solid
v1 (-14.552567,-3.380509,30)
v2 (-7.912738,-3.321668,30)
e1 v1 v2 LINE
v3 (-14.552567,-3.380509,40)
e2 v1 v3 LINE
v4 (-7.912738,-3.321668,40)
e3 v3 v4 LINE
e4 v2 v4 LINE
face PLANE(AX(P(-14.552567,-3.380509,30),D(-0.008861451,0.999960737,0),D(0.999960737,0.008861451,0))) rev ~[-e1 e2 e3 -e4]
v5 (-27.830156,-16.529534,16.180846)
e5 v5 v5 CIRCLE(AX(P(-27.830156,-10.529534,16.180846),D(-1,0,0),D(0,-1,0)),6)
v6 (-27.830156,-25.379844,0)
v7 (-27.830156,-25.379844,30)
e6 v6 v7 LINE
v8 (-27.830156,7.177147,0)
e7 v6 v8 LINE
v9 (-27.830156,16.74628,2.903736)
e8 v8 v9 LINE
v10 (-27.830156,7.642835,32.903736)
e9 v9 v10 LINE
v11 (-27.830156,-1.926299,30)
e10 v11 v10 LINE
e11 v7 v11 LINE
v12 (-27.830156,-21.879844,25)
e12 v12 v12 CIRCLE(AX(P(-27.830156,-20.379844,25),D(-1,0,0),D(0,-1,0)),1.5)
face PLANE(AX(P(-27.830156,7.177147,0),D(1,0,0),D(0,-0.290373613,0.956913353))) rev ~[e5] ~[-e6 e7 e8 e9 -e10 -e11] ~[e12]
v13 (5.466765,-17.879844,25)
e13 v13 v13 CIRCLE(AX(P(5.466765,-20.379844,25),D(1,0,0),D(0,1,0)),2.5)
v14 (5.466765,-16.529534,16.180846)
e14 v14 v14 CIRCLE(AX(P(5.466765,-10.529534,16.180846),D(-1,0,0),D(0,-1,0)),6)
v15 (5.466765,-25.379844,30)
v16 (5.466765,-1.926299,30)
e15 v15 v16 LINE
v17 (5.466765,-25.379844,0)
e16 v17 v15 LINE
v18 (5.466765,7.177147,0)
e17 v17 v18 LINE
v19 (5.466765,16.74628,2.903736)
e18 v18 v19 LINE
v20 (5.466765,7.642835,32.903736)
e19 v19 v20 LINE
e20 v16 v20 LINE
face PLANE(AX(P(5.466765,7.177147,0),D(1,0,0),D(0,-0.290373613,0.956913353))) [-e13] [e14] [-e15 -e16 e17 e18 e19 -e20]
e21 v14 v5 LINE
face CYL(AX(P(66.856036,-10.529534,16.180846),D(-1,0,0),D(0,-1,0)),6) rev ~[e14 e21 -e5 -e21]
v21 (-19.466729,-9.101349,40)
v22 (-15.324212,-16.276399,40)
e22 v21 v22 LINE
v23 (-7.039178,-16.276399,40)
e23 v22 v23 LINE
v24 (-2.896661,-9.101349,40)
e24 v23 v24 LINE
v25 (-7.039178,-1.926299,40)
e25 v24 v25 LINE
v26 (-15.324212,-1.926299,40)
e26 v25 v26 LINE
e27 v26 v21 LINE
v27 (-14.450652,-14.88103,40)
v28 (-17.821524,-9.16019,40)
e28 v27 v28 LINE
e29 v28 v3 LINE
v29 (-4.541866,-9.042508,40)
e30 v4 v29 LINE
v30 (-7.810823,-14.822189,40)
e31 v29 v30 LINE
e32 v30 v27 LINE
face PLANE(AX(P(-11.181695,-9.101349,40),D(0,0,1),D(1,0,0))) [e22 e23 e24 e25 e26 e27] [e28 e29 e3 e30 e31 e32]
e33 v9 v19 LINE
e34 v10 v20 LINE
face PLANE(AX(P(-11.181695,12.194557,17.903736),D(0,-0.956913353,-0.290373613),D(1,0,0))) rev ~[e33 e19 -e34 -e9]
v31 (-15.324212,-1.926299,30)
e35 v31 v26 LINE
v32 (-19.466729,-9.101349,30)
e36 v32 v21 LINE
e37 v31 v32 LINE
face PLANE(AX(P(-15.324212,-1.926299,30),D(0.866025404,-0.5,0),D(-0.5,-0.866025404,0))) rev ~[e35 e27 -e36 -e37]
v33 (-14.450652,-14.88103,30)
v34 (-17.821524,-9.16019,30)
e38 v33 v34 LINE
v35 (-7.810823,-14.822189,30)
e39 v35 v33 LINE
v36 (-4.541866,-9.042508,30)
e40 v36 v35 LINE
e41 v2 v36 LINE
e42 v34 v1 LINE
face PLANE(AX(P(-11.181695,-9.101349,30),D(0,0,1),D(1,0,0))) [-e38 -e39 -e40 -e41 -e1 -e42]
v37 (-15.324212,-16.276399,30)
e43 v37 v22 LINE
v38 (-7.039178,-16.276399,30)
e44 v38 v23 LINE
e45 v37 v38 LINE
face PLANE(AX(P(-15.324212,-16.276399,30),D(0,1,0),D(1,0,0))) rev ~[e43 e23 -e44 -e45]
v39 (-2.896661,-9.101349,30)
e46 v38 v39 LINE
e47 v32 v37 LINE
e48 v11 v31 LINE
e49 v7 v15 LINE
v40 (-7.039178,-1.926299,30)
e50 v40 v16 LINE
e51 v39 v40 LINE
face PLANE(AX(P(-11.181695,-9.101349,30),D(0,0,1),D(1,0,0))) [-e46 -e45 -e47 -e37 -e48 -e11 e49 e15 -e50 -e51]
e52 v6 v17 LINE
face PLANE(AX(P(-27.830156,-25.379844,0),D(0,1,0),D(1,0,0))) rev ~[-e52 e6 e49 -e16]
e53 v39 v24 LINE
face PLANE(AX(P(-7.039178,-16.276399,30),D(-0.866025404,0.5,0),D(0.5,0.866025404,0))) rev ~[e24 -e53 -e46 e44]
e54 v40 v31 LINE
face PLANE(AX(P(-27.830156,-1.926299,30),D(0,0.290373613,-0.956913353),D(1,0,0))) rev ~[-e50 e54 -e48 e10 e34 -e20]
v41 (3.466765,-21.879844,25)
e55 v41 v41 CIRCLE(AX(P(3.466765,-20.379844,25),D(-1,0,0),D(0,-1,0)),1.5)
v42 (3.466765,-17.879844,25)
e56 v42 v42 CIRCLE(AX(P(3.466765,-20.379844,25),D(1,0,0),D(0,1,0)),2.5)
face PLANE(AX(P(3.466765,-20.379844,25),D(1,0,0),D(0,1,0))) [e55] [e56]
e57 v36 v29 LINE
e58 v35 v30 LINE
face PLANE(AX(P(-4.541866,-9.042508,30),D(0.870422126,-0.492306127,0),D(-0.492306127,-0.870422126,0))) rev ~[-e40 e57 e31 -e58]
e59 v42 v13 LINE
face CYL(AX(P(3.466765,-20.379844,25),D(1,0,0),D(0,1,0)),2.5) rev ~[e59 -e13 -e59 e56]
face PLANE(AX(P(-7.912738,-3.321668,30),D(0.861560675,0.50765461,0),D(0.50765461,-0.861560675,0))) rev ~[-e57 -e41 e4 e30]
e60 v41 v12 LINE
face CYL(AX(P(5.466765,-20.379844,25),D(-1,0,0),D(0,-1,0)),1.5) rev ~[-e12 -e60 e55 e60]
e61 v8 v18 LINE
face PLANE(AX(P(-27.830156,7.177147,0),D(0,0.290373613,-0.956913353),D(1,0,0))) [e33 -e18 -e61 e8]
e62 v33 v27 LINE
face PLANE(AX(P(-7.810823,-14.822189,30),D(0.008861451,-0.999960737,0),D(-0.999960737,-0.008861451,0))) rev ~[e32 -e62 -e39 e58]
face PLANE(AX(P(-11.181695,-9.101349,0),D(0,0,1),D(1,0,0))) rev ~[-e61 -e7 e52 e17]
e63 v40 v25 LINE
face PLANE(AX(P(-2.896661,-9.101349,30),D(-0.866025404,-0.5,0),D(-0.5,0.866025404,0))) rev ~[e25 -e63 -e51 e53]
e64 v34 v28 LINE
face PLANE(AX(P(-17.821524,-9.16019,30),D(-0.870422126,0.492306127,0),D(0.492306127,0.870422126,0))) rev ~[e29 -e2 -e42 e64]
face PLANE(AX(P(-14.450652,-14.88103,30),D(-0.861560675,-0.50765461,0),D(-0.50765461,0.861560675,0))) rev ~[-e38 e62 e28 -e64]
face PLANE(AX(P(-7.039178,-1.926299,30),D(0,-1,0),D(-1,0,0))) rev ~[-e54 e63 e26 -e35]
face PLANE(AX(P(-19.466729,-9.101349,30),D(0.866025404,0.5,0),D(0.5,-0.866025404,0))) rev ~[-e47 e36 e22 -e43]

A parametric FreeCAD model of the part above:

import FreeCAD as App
import Part
import Sketcher
from FreeCAD import Vector
Q = App.Units.Quantity

doc = App.newDocument("Part")
body = doc.addObject("PartDesign::Body", "Body")

# Sketch on XY plane
sketch1 = body.newObject("Sketcher::SketchObject", "Sketch")
sketch1.AttachmentSupport = (doc.getObject("XY_Plane"), [""])
sketch1.MapMode = "FlatFace"
sketch1.addGeometry([
    Part.LineSegment(Vector(-27.830156, 7.177147, 0), Vector(-27.830156, -25.379844, 0)),
    Part.LineSegment(Vector(-27.830156, -25.379844, 0), Vector(5.466765, -25.379844, 0)),
    Part.LineSegment(Vector(5.466765, -25.379844, 0), Vector(5.466765, 7.177147, 0)),
    Part.LineSegment(Vector(5.466765, 7.177147, 0), Vector(-27.830156, 7.177147, 0)),
], False)
sketch1.addConstraint([
    Sketcher.Constraint("Coincident", 0, 2, 1, 1),
    Sketcher.Constraint("Coincident", 1, 2, 2, 1),
    Sketcher.Constraint("Coincident", 2, 2, 3, 1),
    Sketcher.Constraint("Coincident", 3, 2, 0, 1),
    Sketcher.Constraint("Vertical", 0),
    Sketcher.Constraint("Horizontal", 1),
    Sketcher.Constraint("Vertical", 2),
    Sketcher.Constraint("Horizontal", 3),
    Sketcher.Constraint("DistanceX", 1, 1, 1, 2, Q("33.296921 mm")),
    Sketcher.Constraint("DistanceY", 0, 2, 0, 1, Q("32.556991 mm")),
    Sketcher.Constraint("DistanceX", 0, 2, -1, 1, Q("27.830156 mm")),
    Sketcher.Constraint("DistanceY", 0, 2, -1, 1, Q("25.379844 mm")),
])
pad1 = body.newObject("PartDesign::Pad", "Pad")
pad1.Profile = sketch1
pad1.Length = 30

# Sketch on XY plane
sketch2 = body.newObject("Sketcher::SketchObject", "Sketch001")
sketch2.AttachmentSupport = (doc.getObject("XY_Plane"), [""])
sketch2.MapMode = "FlatFace"
sketch2.AttachmentOffset = App.Placement(Vector(0, 0, 30), App.Rotation())
sketch2.addGeometry([
    Part.LineSegment(Vector(-15.324212, -16.276399, 0), Vector(-7.039178, -16.276399, 0)),  # 0
    Part.LineSegment(Vector(-7.039178, -16.276399, 0), Vector(-2.896661, -9.101349, 0)),  # 1
    Part.LineSegment(Vector(-2.896661, -9.101349, 0), Vector(-7.039178, -1.926299, 0)),  # 2
    Part.LineSegment(Vector(-7.039178, -1.926299, 0), Vector(-15.324212, -1.926299, 0)),  # 3
    Part.LineSegment(Vector(-15.324212, -1.926299, 0), Vector(-19.466729, -9.101349, 0)),  # 4
    Part.LineSegment(Vector(-19.466729, -9.101349, 0), Vector(-15.324212, -16.276399, 0)),  # 5
    Part.LineSegment(Vector(-7.810823, -14.822189, 0), Vector(-14.450652, -14.88103, 0)),  # 6
    Part.LineSegment(Vector(-14.450652, -14.88103, 0), Vector(-17.821524, -9.16019, 0)),  # 7
    Part.LineSegment(Vector(-17.821524, -9.16019, 0), Vector(-14.552567, -3.380509, 0)),  # 8
    Part.LineSegment(Vector(-14.552567, -3.380509, 0), Vector(-7.912738, -3.321668, 0)),  # 9
    Part.LineSegment(Vector(-7.912738, -3.321668, 0), Vector(-4.541866, -9.042508, 0)),  # 10
    Part.LineSegment(Vector(-4.541866, -9.042508, 0), Vector(-7.810823, -14.822189, 0)),  # 11
], False)
sketch2.addConstraint([
    Sketcher.Constraint("Coincident", 0, 2, 1, 1),
    Sketcher.Constraint("Coincident", 1, 2, 2, 1),
    Sketcher.Constraint("Coincident", 2, 2, 3, 1),
    Sketcher.Constraint("Coincident", 3, 2, 4, 1),
    Sketcher.Constraint("Coincident", 4, 2, 5, 1),
    Sketcher.Constraint("Coincident", 5, 2, 0, 1),
    Sketcher.Constraint("Coincident", 6, 2, 7, 1),
    Sketcher.Constraint("Coincident", 7, 2, 8, 1),
    Sketcher.Constraint("Coincident", 8, 2, 9, 1),
    Sketcher.Constraint("Coincident", 9, 2, 10, 1),
    Sketcher.Constraint("Coincident", 10, 2, 11, 1),
    Sketcher.Constraint("Coincident", 11, 2, 6, 1),
    Sketcher.Constraint("Horizontal", 0),
    Sketcher.Constraint("Horizontal", 3),
    Sketcher.Constraint("Parallel", 1, 4),
    Sketcher.Constraint("Parallel", 2, 5),
    Sketcher.Constraint("Parallel", 6, 9),
    Sketcher.Constraint("Parallel", 7, 10),
    Sketcher.Constraint("Parallel", 8, 11),
    Sketcher.Constraint("Horizontal", 1, 2, 4, 2),
    Sketcher.Constraint("Vertical", 0, 2, 2, 2),
    Sketcher.Constraint("Vertical", 3, 2, 5, 2),
    Sketcher.Constraint("Equal", 6, 7),
    Sketcher.Constraint("Equal", 7, 8),
    Sketcher.Constraint("Equal", 8, 9),
    Sketcher.Constraint("Angle", 1, Q("60 deg")),
    Sketcher.Constraint("DistanceY", 10, 2, 8, 2, Q("5.661999 mm")),
    Sketcher.Constraint("DistanceY", 0, 2, -1, 1, Q("16.276399 mm")),
    Sketcher.Constraint("DistanceY", 2, 2, -1, 1, Q("1.926299 mm")),
    Sketcher.Constraint("DistanceX", 8, 2, 10, 2, Q("10.010701 mm")),
    Sketcher.Constraint("Distance", 6, Q("6.64009 mm")),
    Sketcher.Constraint("DistanceX", 0, 1, 0, 2, Q("8.285034 mm")),
    Sketcher.Constraint("DistanceX", 0, 2, -1, 1, Q("7.039178 mm")),
    Sketcher.Constraint("DistanceX", 6, 2, -1, 1, Q("14.450652 mm")),
    Sketcher.Constraint("DistanceY", 6, 2, -1, 1, Q("14.88103 mm")),
    Sketcher.Constraint("DistanceY", 8, 2, -1, 1, Q("3.380509 mm")),
])
pad2 = body.newObject("PartDesign::Pad", "Pad001")
pad2.Profile = sketch2
pad2.Length = 10

# Sketch on YZ plane
sketch3 = body.newObject("Sketcher::SketchObject", "Sketch002")
sketch3.AttachmentSupport = (doc.getObject("YZ_Plane"), [""])
sketch3.MapMode = "FlatFace"
sketch3.AttachmentOffset = App.Placement(Vector(0, 0, 5.466765), App.Rotation())
sketch3.addGeometry(Part.Circle(Vector(-10.529534, 16.180846, 0), Vector(0, 0, 1), 6), False)
sketch3.addConstraint([
    Sketcher.Constraint("Diameter", 0, Q("12 mm")),
    Sketcher.Constraint("DistanceX", 0, 3, -1, 1, Q("10.529534 mm")),
    Sketcher.Constraint("DistanceY", -1, 1, 0, 3, Q("16.180846 mm")),
])
doc.recompute()
hole = body.newObject("PartDesign::Hole", "Hole")
hole.Profile = sketch3
hole.ThreadType = "None"
hole.Diameter = 12
hole.DepthType = "ThroughAll"

# Sketch on YZ plane
sketch4 = body.newObject("Sketcher::SketchObject", "Sketch003")
sketch4.AttachmentSupport = (doc.getObject("YZ_Plane"), [""])
sketch4.MapMode = "FlatFace"
sketch4.AttachmentOffset = App.Placement(Vector(0, 0, 5.466765), App.Rotation())
sketch4.addGeometry(Part.Circle(Vector(-20.379844, 25, 0), Vector(0, 0, 1), 1.5), False)
sketch4.addConstraint([
    Sketcher.Constraint("Diameter", 0, Q("3 mm")),
    Sketcher.Constraint("DistanceY", -1, 1, 0, 3, Q("25 mm")),
    Sketcher.Constraint("DistanceX", 0, 3, -1, 1, Q("20.379844 mm")),
])
doc.recompute()
hole2 = body.newObject("PartDesign::Hole", "Hole001")
hole2.Profile = sketch4
hole2.ThreadType = "None"
hole2.Diameter = 3
hole2.DepthType = "ThroughAll"
hole2.HoleCutType = "Counterbore"
hole2.HoleCutDiameter = 5
hole2.HoleCutDepth = 2

# Sketch on an angled plane
sketch5 = body.newObject("Sketcher::SketchObject", "Sketch004")
sketch5.Placement = App.Placement(Vector(0, 6.571992, 1.994259), App.Rotation(Vector(1, 0, 0), Vector(0, -0.290373613, 0.956913353), Vector(0, -0.956913353, -0.290373613), "ZXY"))
sketch5.addGeometry([
    Part.LineSegment(Vector(-27.830156, 29.266747, 0), Vector(-27.830156, -2.084054, 0)),
    Part.LineSegment(Vector(-27.830156, -2.084054, 0), Vector(5.466765, -2.084054, 0)),
    Part.LineSegment(Vector(5.466765, -2.084054, 0), Vector(5.466765, 29.266747, 0)),
    Part.LineSegment(Vector(5.466765, 29.266747, 0), Vector(-27.830156, 29.266747, 0)),
], False)
sketch5.addConstraint([
    Sketcher.Constraint("Coincident", 0, 2, 1, 1),
    Sketcher.Constraint("Coincident", 1, 2, 2, 1),
    Sketcher.Constraint("Coincident", 2, 2, 3, 1),
    Sketcher.Constraint("Coincident", 3, 2, 0, 1),
    Sketcher.Constraint("Vertical", 0),
    Sketcher.Constraint("Horizontal", 1),
    Sketcher.Constraint("Vertical", 2),
    Sketcher.Constraint("Horizontal", 3),
    Sketcher.Constraint("DistanceY", 0, 2, 0, 1, Q("31.350801 mm")),
    Sketcher.Constraint("DistanceX", 1, 1, 1, 2, Q("33.296921 mm")),
    Sketcher.Constraint("DistanceX", 0, 2, -1, 1, Q("27.830156 mm")),
    Sketcher.Constraint("DistanceY", 0, 2, -1, 1, Q("2.084054 mm")),
])
pad3 = body.newObject("PartDesign::Pad", "Pad002")
pad3.Profile = sketch5
pad3.Length = 10
pad3.Reversed = True

doc.recompute()
